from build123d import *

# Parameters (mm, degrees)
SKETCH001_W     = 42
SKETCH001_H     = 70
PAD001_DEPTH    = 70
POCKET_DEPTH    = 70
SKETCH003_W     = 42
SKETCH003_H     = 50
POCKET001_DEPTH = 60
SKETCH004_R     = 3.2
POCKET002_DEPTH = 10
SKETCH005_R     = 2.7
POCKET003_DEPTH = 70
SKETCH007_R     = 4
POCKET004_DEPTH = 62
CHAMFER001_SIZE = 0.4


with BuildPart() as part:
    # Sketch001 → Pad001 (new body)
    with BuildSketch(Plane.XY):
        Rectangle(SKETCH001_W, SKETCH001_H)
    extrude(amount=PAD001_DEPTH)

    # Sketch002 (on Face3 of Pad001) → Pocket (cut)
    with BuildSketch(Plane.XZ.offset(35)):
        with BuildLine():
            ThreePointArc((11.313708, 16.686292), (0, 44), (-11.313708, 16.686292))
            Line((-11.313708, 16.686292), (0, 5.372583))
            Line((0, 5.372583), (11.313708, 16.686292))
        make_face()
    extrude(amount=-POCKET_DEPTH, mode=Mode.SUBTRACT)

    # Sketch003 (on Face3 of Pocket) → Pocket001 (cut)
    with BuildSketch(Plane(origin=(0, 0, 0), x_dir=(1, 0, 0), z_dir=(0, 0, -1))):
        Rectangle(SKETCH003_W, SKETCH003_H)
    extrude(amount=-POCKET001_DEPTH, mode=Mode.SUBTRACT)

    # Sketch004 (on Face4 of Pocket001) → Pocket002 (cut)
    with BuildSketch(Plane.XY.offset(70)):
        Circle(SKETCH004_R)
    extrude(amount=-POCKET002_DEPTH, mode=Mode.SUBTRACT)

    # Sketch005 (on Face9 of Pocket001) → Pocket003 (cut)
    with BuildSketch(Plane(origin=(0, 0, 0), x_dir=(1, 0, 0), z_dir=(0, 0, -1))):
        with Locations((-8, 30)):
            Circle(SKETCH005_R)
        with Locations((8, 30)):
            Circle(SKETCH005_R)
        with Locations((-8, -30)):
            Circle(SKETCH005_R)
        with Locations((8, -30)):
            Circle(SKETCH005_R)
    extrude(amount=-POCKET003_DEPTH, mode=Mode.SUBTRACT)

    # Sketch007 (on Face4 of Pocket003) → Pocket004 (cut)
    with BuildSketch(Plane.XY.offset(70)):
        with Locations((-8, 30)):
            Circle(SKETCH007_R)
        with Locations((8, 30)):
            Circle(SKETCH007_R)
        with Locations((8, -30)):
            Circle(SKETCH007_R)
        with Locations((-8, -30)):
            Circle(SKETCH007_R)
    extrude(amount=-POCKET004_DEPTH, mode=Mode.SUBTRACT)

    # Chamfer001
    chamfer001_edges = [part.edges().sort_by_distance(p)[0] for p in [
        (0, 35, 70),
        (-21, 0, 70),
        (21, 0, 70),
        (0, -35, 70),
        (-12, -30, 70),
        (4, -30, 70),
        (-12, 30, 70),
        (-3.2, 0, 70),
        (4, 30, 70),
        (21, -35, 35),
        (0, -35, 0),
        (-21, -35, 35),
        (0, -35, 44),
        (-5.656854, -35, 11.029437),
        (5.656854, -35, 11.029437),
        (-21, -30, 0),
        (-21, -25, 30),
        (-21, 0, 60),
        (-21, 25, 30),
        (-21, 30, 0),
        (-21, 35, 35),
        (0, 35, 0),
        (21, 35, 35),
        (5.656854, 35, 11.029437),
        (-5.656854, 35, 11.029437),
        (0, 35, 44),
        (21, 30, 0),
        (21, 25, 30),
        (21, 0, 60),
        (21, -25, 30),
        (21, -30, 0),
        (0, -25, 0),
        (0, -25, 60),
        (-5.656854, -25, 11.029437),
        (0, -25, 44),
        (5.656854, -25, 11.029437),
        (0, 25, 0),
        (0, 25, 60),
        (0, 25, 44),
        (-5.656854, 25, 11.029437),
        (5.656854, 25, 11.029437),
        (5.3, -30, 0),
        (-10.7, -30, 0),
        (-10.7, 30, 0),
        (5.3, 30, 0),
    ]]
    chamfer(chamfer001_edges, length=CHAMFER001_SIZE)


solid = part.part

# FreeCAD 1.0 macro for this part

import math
import FreeCAD as App
import Part
import Sketcher

V = App.Vector
Q = App.Units.Quantity


def edges_at(feature, points):
    """Names of the edges that pass closest to the given points."""
    edges = feature.Shape.Edges
    near = lambda p: min(range(len(edges)), key=lambda i: edges[i].distToShape(Part.Vertex(*p))[0])
    return sorted({f"Edge{near(p) + 1}" for p in points})

doc = App.newDocument("Part")
params = doc.addObject("Spreadsheet::Sheet", "Params")
for row, (alias, value) in enumerate([
    ("sketch1_width", "42 mm"),
    ("sketch1_height", "70 mm"),
    ("pad1_length", "70 mm"),
    ("sketch2_radius", "16 mm"),
    ("pocket1_length", "70 mm"),
    ("sketch3_width", "42 mm"),
    ("sketch3_height", "50 mm"),
    ("pocket2_length", "60 mm"),
    ("sketch4_diameter", "6.4 mm"),
    ("pocket3_length", "10 mm"),
    ("sketch5_diameter", "5.4 mm"),
    ("pocket4_length", "70 mm"),
    ("sketch6_diameter", "8 mm"),
    ("pocket5_length", "62 mm"),
    ("chamfer_size", "0.4 mm"),
], start=1):
    params.set(f"A{row}", alias)
    params.set(f"B{row}", "=" + value)
    params.setAlias(f"B{row}", alias)

body = doc.addObject("PartDesign::Body", "Body")

# Sketch on XY plane
sketch1 = doc.addObject("Sketcher::SketchObject", "Sketch")
body.addObject(sketch1)
sketch1.AttachmentSupport = (doc.XY_Plane, [""])
sketch1.MapMode = "FlatFace"
sketch1.addGeometry([
    Part.LineSegment(V(-21, 35, 0), V(-21, -35, 0)),
    Part.LineSegment(V(-21, -35, 0), V(21, -35, 0)),
    Part.LineSegment(V(21, -35, 0), V(21, 35, 0)),
    Part.LineSegment(V(21, 35, 0), V(-21, 35, 0)),
], False)
sketch1.addConstraint([
    Sketcher.Constraint("Coincident", 0, 2, 1, 1),
    Sketcher.Constraint("Coincident", 1, 2, 2, 1),
    Sketcher.Constraint("Coincident", 2, 2, 3, 1),
    Sketcher.Constraint("Coincident", 3, 2, 0, 1),
    Sketcher.Constraint("Vertical", 0),
    Sketcher.Constraint("Horizontal", 1),
    Sketcher.Constraint("Vertical", 2),
    Sketcher.Constraint("Horizontal", 3),
    Sketcher.Constraint("Symmetric", 0, 2, 2, 2, -1, 1),
    Sketcher.Constraint("DistanceX", 1, 1, 1, 2, Q("42 mm")),
    Sketcher.Constraint("DistanceY", 0, 2, 0, 1, Q("70 mm")),
])
sketch1.setExpression("Constraints[9]", "Params.sketch1_width")
sketch1.setExpression("Constraints[10]", "Params.sketch1_height")
pad1 = doc.addObject("PartDesign::Pad", "Pad")
body.addObject(pad1)
pad1.Profile = sketch1
pad1.setExpression("Length", "Params.pad1_length")

# Sketch on XZ plane
sketch2 = doc.addObject("Sketcher::SketchObject", "Sketch001")
body.addObject(sketch2)
sketch2.AttachmentSupport = (doc.XZ_Plane, [""])
sketch2.MapMode = "FlatFace"
sketch2.AttachmentOffset = App.Placement(V(0, 0, 35), App.Rotation())
sketch2.addGeometry([
    Part.ArcOfCircle(Part.Circle(V(0, 28, 0), V(0, 0, 1), 16), math.radians(-45), math.radians(225)),
    Part.LineSegment(V(-11, 17, 0), V(0, 5, 0)),
    Part.LineSegment(V(0, 5, 0), V(11, 17, 0)),
], False)
sketch2.addConstraint([
    Sketcher.Constraint("Tangent", 0, 2, 1, 1),
    Sketcher.Constraint("Coincident", 1, 2, 2, 1),
    Sketcher.Constraint("Tangent", 2, 2, 0, 1),
    Sketcher.Constraint("Symmetric", 0, 2, 2, 2, -2),
    Sketcher.Constraint("Perpendicular", 1, 2),
    Sketcher.Constraint("Radius", 0, Q("16 mm")),
    Sketcher.Constraint("DistanceY", -1, 1, 0, 3, Q("28 mm")),
])
sketch2.setExpression("Constraints[5]", "Params.sketch2_radius")
pocket1 = doc.addObject("PartDesign::Pocket", "Pocket")
body.addObject(pocket1)
pocket1.Profile = sketch2
pocket1.setExpression("Length", "Params.pocket1_length")

# Sketch on XY plane
sketch3 = doc.addObject("Sketcher::SketchObject", "Sketch002")
body.addObject(sketch3)
sketch3.AttachmentSupport = (doc.XY_Plane, [""])
sketch3.MapMode = "FlatFace"
sketch3.addGeometry([
    Part.LineSegment(V(-21, -25, 0), V(-21, 25, 0)),
    Part.LineSegment(V(-21, 25, 0), V(21, 25, 0)),
    Part.LineSegment(V(21, 25, 0), V(21, -25, 0)),
    Part.LineSegment(V(21, -25, 0), V(-21, -25, 0)),
], False)
sketch3.addConstraint([
    Sketcher.Constraint("Coincident", 0, 2, 1, 1),
    Sketcher.Constraint("Coincident", 1, 2, 2, 1),
    Sketcher.Constraint("Coincident", 2, 2, 3, 1),
    Sketcher.Constraint("Coincident", 3, 2, 0, 1),
    Sketcher.Constraint("Vertical", 0),
    Sketcher.Constraint("Horizontal", 1),
    Sketcher.Constraint("Vertical", 2),
    Sketcher.Constraint("Horizontal", 3),
    Sketcher.Constraint("Symmetric", 0, 2, 2, 2, -1, 1),
    Sketcher.Constraint("DistanceX", 1, 1, 1, 2, Q("42 mm")),
    Sketcher.Constraint("DistanceY", 0, 1, 0, 2, Q("50 mm")),
])
sketch3.setExpression("Constraints[9]", "Params.sketch3_width")
sketch3.setExpression("Constraints[10]", "Params.sketch3_height")
pocket2 = doc.addObject("PartDesign::Pocket", "Pocket001")
body.addObject(pocket2)
pocket2.Profile = sketch3
pocket2.setExpression("Length", "Params.pocket2_length")
pocket2.Reversed = True

# Sketch on XY plane
sketch4 = doc.addObject("Sketcher::SketchObject", "Sketch003")
body.addObject(sketch4)
sketch4.AttachmentSupport = (doc.XY_Plane, [""])
sketch4.MapMode = "FlatFace"
sketch4.AttachmentOffset = App.Placement(V(0, 0, 70), App.Rotation())
sketch4.addGeometry(Part.Circle(V(0, 0, 0), V(0, 0, 1), 3.2), False)
sketch4.addConstraint([
    Sketcher.Constraint("Coincident", 0, 3, -1, 1),
    Sketcher.Constraint("Diameter", 0, Q("6.4 mm")),
])
sketch4.setExpression("Constraints[1]", "Params.sketch4_diameter")
pocket3 = doc.addObject("PartDesign::Pocket", "Pocket002")
body.addObject(pocket3)
pocket3.Profile = sketch4
pocket3.setExpression("Length", "Params.pocket3_length")

# Sketch on XY plane
sketch5 = doc.addObject("Sketcher::SketchObject", "Sketch004")
body.addObject(sketch5)
sketch5.AttachmentSupport = (doc.XY_Plane, [""])
sketch5.MapMode = "FlatFace"
sketch5.addGeometry([
    Part.Circle(V(-8, -30, 0), V(0, 0, 1), 2.7),
    Part.Circle(V(8, -30, 0), V(0, 0, 1), 2.7),
    Part.Circle(V(-8, 30, 0), V(0, 0, 1), 2.7),
    Part.Circle(V(8, 30, 0), V(0, 0, 1), 2.7),
], False)
sketch5.addConstraint([
    Sketcher.Constraint("Equal", 0, 1),
    Sketcher.Constraint("Equal", 1, 2),
    Sketcher.Constraint("Equal", 2, 3),
    Sketcher.Constraint("Symmetric", 1, 3, 2, 3, -1, 1),
    Sketcher.Constraint("Symmetric", 0, 3, 3, 3, -1, 1),
    Sketcher.Constraint("Symmetric", 0, 3, 1, 3, -2),
    Sketcher.Constraint("Diameter", 0, Q("5.4 mm")),
    Sketcher.Constraint("DistanceX", 0, 3, -1, 1, Q("8 mm")),
    Sketcher.Constraint("DistanceY", 0, 3, -1, 1, Q("30 mm")),
])
sketch5.setExpression("Constraints[6]", "Params.sketch5_diameter")
pocket4 = doc.addObject("PartDesign::Pocket", "Pocket003")
body.addObject(pocket4)
pocket4.Profile = sketch5
pocket4.setExpression("Length", "Params.pocket4_length")
pocket4.Reversed = True

# Sketch on XY plane
sketch6 = doc.addObject("Sketcher::SketchObject", "Sketch005")
body.addObject(sketch6)
sketch6.AttachmentSupport = (doc.XY_Plane, [""])
sketch6.MapMode = "FlatFace"
sketch6.AttachmentOffset = App.Placement(V(0, 0, 70), App.Rotation())
sketch6.addGeometry([
    Part.Circle(V(-8, 30, 0), V(0, 0, 1), 4),
    Part.Circle(V(8, 30, 0), V(0, 0, 1), 4),
    Part.Circle(V(8, -30, 0), V(0, 0, 1), 4),
    Part.Circle(V(-8, -30, 0), V(0, 0, 1), 4),
], False)
sketch6.addConstraint([
    Sketcher.Constraint("Equal", 0, 1),
    Sketcher.Constraint("Equal", 1, 2),
    Sketcher.Constraint("Equal", 2, 3),
    Sketcher.Constraint("Symmetric", 0, 3, 2, 3, -1, 1),
    Sketcher.Constraint("Symmetric", 1, 3, 3, 3, -1, 1),
    Sketcher.Constraint("Symmetric", 0, 3, 1, 3, -2),
    Sketcher.Constraint("Diameter", 0, Q("8 mm")),
    Sketcher.Constraint("DistanceX", 0, 3, -1, 1, Q("8 mm")),
    Sketcher.Constraint("DistanceY", -1, 1, 0, 3, Q("30 mm")),
])
sketch6.setExpression("Constraints[6]", "Params.sketch6_diameter")
pocket5 = doc.addObject("PartDesign::Pocket", "Pocket004")
body.addObject(pocket5)
pocket5.Profile = sketch6
pocket5.setExpression("Length", "Params.pocket5_length")
doc.recompute()

chamfer = doc.addObject("PartDesign::Chamfer", "Chamfer")
body.addObject(chamfer)
chamfer.Base = (pocket5, edges_at(pocket5, [
    (0, 35, 70),
    (-21, 0, 70),
    (21, 0, 70),
    (0, -35, 70),
    (-12, -30, 70),
    (4, -30, 70),
    (-12, 30, 70),
    (-3.2, 0, 70),
    (4, 30, 70),
    (21, -35, 35),
    (0, -35, 0),
    (-21, -35, 35),
    (0, -35, 44),
    (-5.657, -35, 11.029),
    (5.657, -35, 11.029),
    (-21, -30, 0),
    (-21, -25, 30),
    (-21, 0, 60),
    (-21, 25, 30),
    (-21, 30, 0),
    (-21, 35, 35),
    (0, 35, 0),
    (21, 35, 35),
    (5.657, 35, 11.029),
    (-5.657, 35, 11.029),
    (0, 35, 44),
    (21, 30, 0),
    (21, 25, 30),
    (21, 0, 60),
    (21, -25, 30),
    (21, -30, 0),
    (0, -25, 0),
    (0, -25, 60),
    (-5.657, -25, 11.029),
    (0, -25, 44),
    (5.657, -25, 11.029),
    (0, 25, 0),
    (0, 25, 60),
    (0, 25, 44),
    (-5.657, 25, 11.029),
    (5.657, 25, 11.029),
    (5.3, -30, 0),
    (-10.7, -30, 0),
    (-10.7, 30, 0),
    (5.3, 30, 0),
]))
chamfer.setExpression("Size", "Params.chamfer_size")

doc.recompute()
